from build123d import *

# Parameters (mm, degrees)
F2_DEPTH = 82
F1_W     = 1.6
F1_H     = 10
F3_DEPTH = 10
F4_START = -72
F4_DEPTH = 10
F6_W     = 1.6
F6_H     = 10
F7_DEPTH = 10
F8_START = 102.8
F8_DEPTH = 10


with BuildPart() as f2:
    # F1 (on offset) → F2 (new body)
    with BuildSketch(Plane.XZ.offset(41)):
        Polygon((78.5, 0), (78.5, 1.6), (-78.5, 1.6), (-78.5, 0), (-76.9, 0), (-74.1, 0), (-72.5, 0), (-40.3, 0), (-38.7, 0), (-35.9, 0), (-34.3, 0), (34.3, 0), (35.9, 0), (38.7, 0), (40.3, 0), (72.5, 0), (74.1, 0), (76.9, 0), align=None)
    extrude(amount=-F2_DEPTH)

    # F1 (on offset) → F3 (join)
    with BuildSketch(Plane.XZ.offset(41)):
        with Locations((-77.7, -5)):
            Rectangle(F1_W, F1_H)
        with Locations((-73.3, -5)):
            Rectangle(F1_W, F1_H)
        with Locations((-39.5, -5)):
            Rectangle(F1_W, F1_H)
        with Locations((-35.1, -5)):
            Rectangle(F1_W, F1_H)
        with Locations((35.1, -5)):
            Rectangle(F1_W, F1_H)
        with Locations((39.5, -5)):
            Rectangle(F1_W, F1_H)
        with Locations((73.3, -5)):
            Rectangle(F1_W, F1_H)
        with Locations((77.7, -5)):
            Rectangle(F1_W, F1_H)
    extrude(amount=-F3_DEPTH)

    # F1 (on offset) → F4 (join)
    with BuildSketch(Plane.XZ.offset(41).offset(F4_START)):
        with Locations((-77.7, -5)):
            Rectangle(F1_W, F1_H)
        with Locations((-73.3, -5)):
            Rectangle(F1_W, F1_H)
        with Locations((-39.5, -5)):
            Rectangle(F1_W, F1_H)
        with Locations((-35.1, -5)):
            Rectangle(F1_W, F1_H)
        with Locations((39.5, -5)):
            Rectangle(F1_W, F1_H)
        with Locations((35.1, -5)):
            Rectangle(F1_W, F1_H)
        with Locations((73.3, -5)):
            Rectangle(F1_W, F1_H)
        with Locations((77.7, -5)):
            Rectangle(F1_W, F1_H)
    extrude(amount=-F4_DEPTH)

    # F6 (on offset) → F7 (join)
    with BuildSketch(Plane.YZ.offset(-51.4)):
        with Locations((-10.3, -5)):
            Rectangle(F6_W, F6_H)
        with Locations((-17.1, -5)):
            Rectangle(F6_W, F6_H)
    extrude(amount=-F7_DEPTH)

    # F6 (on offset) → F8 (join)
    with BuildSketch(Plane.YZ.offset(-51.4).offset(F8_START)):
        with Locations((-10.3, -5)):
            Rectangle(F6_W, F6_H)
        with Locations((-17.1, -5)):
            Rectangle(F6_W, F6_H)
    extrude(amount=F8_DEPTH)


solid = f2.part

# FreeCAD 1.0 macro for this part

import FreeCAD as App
import Part
import Sketcher


def add_polygon(sketch, points):
    """Adds a closed chain of lines whose ends are joined by coincident constraints."""
    first, n = sketch.GeometryCount, len(points)
    for a, b in zip(points, points[1:] + points[:1]):
        sketch.addGeometry(Part.LineSegment(App.Vector(*a, 0), App.Vector(*b, 0)), False)
    for i in range(n):
        sketch.addConstraint(Sketcher.Constraint("Coincident", first + i, 2, first + (i + 1) % n, 1))

doc = App.newDocument("Part")
params = doc.addObject("Spreadsheet::Sheet", "Params")
for row, (alias, value) in enumerate([
    ("sketch1_width", "157 mm"),
    ("sketch1_height", "1.6 mm"),
    ("pad1_length", "82 mm"),
    ("sketch2_height", "10 mm"),
    ("sketch2_width", "1.6 mm"),
    ("pad2_length", "10 mm"),
    ("sketch3_height", "10 mm"),
    ("sketch3_width", "1.6 mm"),
    ("pad3_length", "10 mm"),
    ("sketch4_height", "10 mm"),
    ("sketch4_width", "1.6 mm"),
    ("pad4_length", "10 mm"),
    ("sketch5_height", "10 mm"),
    ("sketch5_width", "1.6 mm"),
    ("pad5_length", "10 mm"),
], start=1):
    params.set(f"A{row}", alias)
    params.set(f"B{row}", "=" + value)
    params.setAlias(f"B{row}", alias)

body = doc.addObject("PartDesign::Body", "Body")

sketch1 = body.newObject("Sketcher::SketchObject", "Sketch")
sketch1.AttachmentSupport = (doc.getObject("XZ_Plane"), [""])
sketch1.MapMode = "FlatFace"
sketch1.AttachmentOffset = App.Placement(App.Vector(0, 0, 41), App.Rotation())
add_polygon(sketch1, [(78.5, 0), (78.5, 1.6), (-78.5, 1.6), (-78.5, 0)])
sketch1.addConstraint(Sketcher.Constraint("Vertical", 0))
sketch1.addConstraint(Sketcher.Constraint("Horizontal", 1))
sketch1.addConstraint(Sketcher.Constraint("Vertical", 2))
sketch1.addConstraint(Sketcher.Constraint("Horizontal", 3))
sketch1.addConstraint(Sketcher.Constraint("Symmetric", 2, 2, 3, 2, -1, 1))
sketch1.addConstraint(Sketcher.Constraint("DistanceX", 1, 2, 1, 1, 157.0))
sketch1.addConstraint(Sketcher.Constraint("DistanceY", 0, 1, 0, 2, 1.6))
sketch1.setExpression("Constraints[9]", "Params.sketch1_width")
sketch1.setExpression("Constraints[10]", "Params.sketch1_height")
pad1 = body.newObject("PartDesign::Pad", "Pad")
pad1.Profile = sketch1
pad1.setExpression("Length", "Params.pad1_length")
pad1.Reversed = True

sketch2 = body.newObject("Sketcher::SketchObject", "Sketch001")
sketch2.AttachmentSupport = (doc.getObject("XZ_Plane"), [""])
sketch2.MapMode = "FlatFace"
sketch2.AttachmentOffset = App.Placement(App.Vector(0, 0, 41), App.Rotation())
add_polygon(sketch2, [(-78.5, 0), (-78.5, -10), (-76.9, -10), (-76.9, 0)])
add_polygon(sketch2, [(-74.1, 0), (-74.1, -10), (-72.5, -10), (-72.5, 0)])
add_polygon(sketch2, [(-40.3, 0), (-40.3, -10), (-38.7, -10), (-38.7, 0)])
add_polygon(sketch2, [(-35.9, 0), (-35.9, -10), (-34.3, -10), (-34.3, 0)])
add_polygon(sketch2, [(34.3, 0), (34.3, -10), (35.9, -10), (35.9, 0)])
add_polygon(sketch2, [(38.7, 0), (38.7, -10), (40.3, -10), (40.3, 0)])
add_polygon(sketch2, [(72.5, 0), (72.5, -10), (74.1, -10), (74.1, 0)])
add_polygon(sketch2, [(76.9, 0), (76.9, -10), (78.5, -10), (78.5, 0)])
sketch2.addConstraint(Sketcher.Constraint("Vertical", 0))
sketch2.addConstraint(Sketcher.Constraint("Horizontal", 1))
sketch2.addConstraint(Sketcher.Constraint("Vertical", 2))
sketch2.addConstraint(Sketcher.Constraint("Horizontal", 3))
sketch2.addConstraint(Sketcher.Constraint("Vertical", 4))
sketch2.addConstraint(Sketcher.Constraint("Horizontal", 5))
sketch2.addConstraint(Sketcher.Constraint("Vertical", 6))
sketch2.addConstraint(Sketcher.Constraint("Horizontal", 7))
sketch2.addConstraint(Sketcher.Constraint("Vertical", 8))
sketch2.addConstraint(Sketcher.Constraint("Horizontal", 9))
sketch2.addConstraint(Sketcher.Constraint("Vertical", 10))
sketch2.addConstraint(Sketcher.Constraint("Horizontal", 11))
sketch2.addConstraint(Sketcher.Constraint("Vertical", 12))
sketch2.addConstraint(Sketcher.Constraint("Horizontal", 13))
sketch2.addConstraint(Sketcher.Constraint("Vertical", 14))
sketch2.addConstraint(Sketcher.Constraint("Horizontal", 15))
sketch2.addConstraint(Sketcher.Constraint("Vertical", 16))
sketch2.addConstraint(Sketcher.Constraint("Horizontal", 17))
sketch2.addConstraint(Sketcher.Constraint("Vertical", 18))
sketch2.addConstraint(Sketcher.Constraint("Horizontal", 19))
sketch2.addConstraint(Sketcher.Constraint("Vertical", 20))
sketch2.addConstraint(Sketcher.Constraint("Horizontal", 21))
sketch2.addConstraint(Sketcher.Constraint("Vertical", 22))
sketch2.addConstraint(Sketcher.Constraint("Horizontal", 23))
sketch2.addConstraint(Sketcher.Constraint("Vertical", 24))
sketch2.addConstraint(Sketcher.Constraint("Horizontal", 25))
sketch2.addConstraint(Sketcher.Constraint("Vertical", 26))
sketch2.addConstraint(Sketcher.Constraint("Horizontal", 27))
sketch2.addConstraint(Sketcher.Constraint("Vertical", 28))
sketch2.addConstraint(Sketcher.Constraint("Horizontal", 29))
sketch2.addConstraint(Sketcher.Constraint("Vertical", 30))
sketch2.addConstraint(Sketcher.Constraint("Horizontal", 31))
sketch2.addConstraint(Sketcher.Constraint("Symmetric", 15, 2, 18, 2, -1, 1))
sketch2.addConstraint(Sketcher.Constraint("Symmetric", 11, 2, 22, 2, -1, 1))
sketch2.addConstraint(Sketcher.Constraint("Symmetric", 7, 2, 26, 2, -1, 1))
sketch2.addConstraint(Sketcher.Constraint("Symmetric", 3, 2, 30, 2, -1, 1))
sketch2.addConstraint(Sketcher.Constraint("Symmetric", 13, 2, 16, 2, -2))
sketch2.addConstraint(Sketcher.Constraint("Symmetric", 9, 2, 20, 2, -2))
sketch2.addConstraint(Sketcher.Constraint("Symmetric", 5, 2, 24, 2, -2))
sketch2.addConstraint(Sketcher.Constraint("Symmetric", 1, 2, 28, 2, -2))
sketch2.addConstraint(Sketcher.Constraint("PointOnObject", 2, 2, -1))
sketch2.addConstraint(Sketcher.Constraint("PointOnObject", 6, 2, -1))
sketch2.addConstraint(Sketcher.Constraint("PointOnObject", 10, 2, -1))
sketch2.addConstraint(Sketcher.Constraint("PointOnObject", 14, 2, -1))
sketch2.addConstraint(Sketcher.Constraint("Horizontal", 1, 2, 4, 2))
sketch2.addConstraint(Sketcher.Constraint("Horizontal", 5, 2, 8, 2))
sketch2.addConstraint(Sketcher.Constraint("Horizontal", 9, 2, 12, 2))
sketch2.addConstraint(Sketcher.Constraint("Equal", 3, 5))
sketch2.addConstraint(Sketcher.Constraint("Equal", 7, 9))
sketch2.addConstraint(Sketcher.Constraint("Equal", 11, 13))
sketch2.addConstraint(Sketcher.Constraint("DistanceY", 0, 2, 0, 1, 10.0))
sketch2.addConstraint(Sketcher.Constraint("DistanceX", 1, 1, 1, 2, 1.6))
sketch2.addConstraint(Sketcher.Constraint("DistanceX", 0, 2, 5, 2, 6.0))
sketch2.addConstraint(Sketcher.Constraint("DistanceX", 8, 2, 13, 2, 6.0))
sketch2.addConstraint(Sketcher.Constraint("DistanceX", 9, 2, 16, 2, 73.0))
sketch2.addConstraint(Sketcher.Constraint("DistanceX", 0, 2, -1, 1, 78.5))
sketch2.setExpression("Constraints[82]", "Params.sketch2_height")
sketch2.setExpression("Constraints[83]", "Params.sketch2_width")
pad2 = body.newObject("PartDesign::Pad", "Pad001")
pad2.Profile = sketch2
pad2.setExpression("Length", "Params.pad2_length")
pad2.Reversed = True

sketch3 = body.newObject("Sketcher::SketchObject", "Sketch002")
sketch3.AttachmentSupport = (doc.getObject("XZ_Plane"), [""])
sketch3.MapMode = "FlatFace"
sketch3.AttachmentOffset = App.Placement(App.Vector(0, 0, -31), App.Rotation())
add_polygon(sketch3, [(-78.5, 0), (-78.5, -10), (-76.9, -10), (-76.9, 0)])
add_polygon(sketch3, [(-74.1, 0), (-74.1, -10), (-72.5, -10), (-72.5, 0)])
add_polygon(sketch3, [(-40.3, 0), (-40.3, -10), (-38.7, -10), (-38.7, 0)])
add_polygon(sketch3, [(-35.9, 0), (-35.9, -10), (-34.3, -10), (-34.3, 0)])
add_polygon(sketch3, [(38.7, 0), (38.7, -10), (40.3, -10), (40.3, 0)])
add_polygon(sketch3, [(34.3, 0), (34.3, -10), (35.9, -10), (35.9, 0)])
add_polygon(sketch3, [(72.5, 0), (72.5, -10), (74.1, -10), (74.1, 0)])
add_polygon(sketch3, [(76.9, 0), (76.9, -10), (78.5, -10), (78.5, 0)])
sketch3.addConstraint(Sketcher.Constraint("Vertical", 0))
sketch3.addConstraint(Sketcher.Constraint("Horizontal", 1))
sketch3.addConstraint(Sketcher.Constraint("Vertical", 2))
sketch3.addConstraint(Sketcher.Constraint("Horizontal", 3))
sketch3.addConstraint(Sketcher.Constraint("Vertical", 4))
sketch3.addConstraint(Sketcher.Constraint("Horizontal", 5))
sketch3.addConstraint(Sketcher.Constraint("Vertical", 6))
sketch3.addConstraint(Sketcher.Constraint("Horizontal", 7))
sketch3.addConstraint(Sketcher.Constraint("Vertical", 8))
sketch3.addConstraint(Sketcher.Constraint("Horizontal", 9))
sketch3.addConstraint(Sketcher.Constraint("Vertical", 10))
sketch3.addConstraint(Sketcher.Constraint("Horizontal", 11))
sketch3.addConstraint(Sketcher.Constraint("Vertical", 12))
sketch3.addConstraint(Sketcher.Constraint("Horizontal", 13))
sketch3.addConstraint(Sketcher.Constraint("Vertical", 14))
sketch3.addConstraint(Sketcher.Constraint("Horizontal", 15))
sketch3.addConstraint(Sketcher.Constraint("Vertical", 16))
sketch3.addConstraint(Sketcher.Constraint("Horizontal", 17))
sketch3.addConstraint(Sketcher.Constraint("Vertical", 18))
sketch3.addConstraint(Sketcher.Constraint("Horizontal", 19))
sketch3.addConstraint(Sketcher.Constraint("Vertical", 20))
sketch3.addConstraint(Sketcher.Constraint("Horizontal", 21))
sketch3.addConstraint(Sketcher.Constraint("Vertical", 22))
sketch3.addConstraint(Sketcher.Constraint("Horizontal", 23))
sketch3.addConstraint(Sketcher.Constraint("Vertical", 24))
sketch3.addConstraint(Sketcher.Constraint("Horizontal", 25))
sketch3.addConstraint(Sketcher.Constraint("Vertical", 26))
sketch3.addConstraint(Sketcher.Constraint("Horizontal", 27))
sketch3.addConstraint(Sketcher.Constraint("Vertical", 28))
sketch3.addConstraint(Sketcher.Constraint("Horizontal", 29))
sketch3.addConstraint(Sketcher.Constraint("Vertical", 30))
sketch3.addConstraint(Sketcher.Constraint("Horizontal", 31))
sketch3.addConstraint(Sketcher.Constraint("Symmetric", 11, 2, 18, 2, -1, 1))
sketch3.addConstraint(Sketcher.Constraint("Symmetric", 15, 2, 22, 2, -1, 1))
sketch3.addConstraint(Sketcher.Constraint("Symmetric", 7, 2, 26, 2, -1, 1))
sketch3.addConstraint(Sketcher.Constraint("Symmetric", 3, 2, 30, 2, -1, 1))
sketch3.addConstraint(Sketcher.Constraint("Symmetric", 9, 2, 16, 2, -2))
sketch3.addConstraint(Sketcher.Constraint("Symmetric", 13, 2, 20, 2, -2))
sketch3.addConstraint(Sketcher.Constraint("Symmetric", 5, 2, 24, 2, -2))
sketch3.addConstraint(Sketcher.Constraint("Symmetric", 1, 2, 28, 2, -2))
sketch3.addConstraint(Sketcher.Constraint("PointOnObject", 2, 2, -1))
sketch3.addConstraint(Sketcher.Constraint("PointOnObject", 6, 2, -1))
sketch3.addConstraint(Sketcher.Constraint("PointOnObject", 10, 2, -1))
sketch3.addConstraint(Sketcher.Constraint("PointOnObject", 14, 2, -1))
sketch3.addConstraint(Sketcher.Constraint("Horizontal", 1, 2, 4, 2))
sketch3.addConstraint(Sketcher.Constraint("Horizontal", 5, 2, 8, 2))
sketch3.addConstraint(Sketcher.Constraint("Horizontal", 9, 2, 12, 2))
sketch3.addConstraint(Sketcher.Constraint("Equal", 3, 5))
sketch3.addConstraint(Sketcher.Constraint("Equal", 7, 9))
sketch3.addConstraint(Sketcher.Constraint("Equal", 11, 13))
sketch3.addConstraint(Sketcher.Constraint("DistanceY", 0, 2, 0, 1, 10.0))
sketch3.addConstraint(Sketcher.Constraint("DistanceX", 1, 1, 1, 2, 1.6))
sketch3.addConstraint(Sketcher.Constraint("DistanceX", 0, 2, 5, 2, 6.0))
sketch3.addConstraint(Sketcher.Constraint("DistanceX", 8, 2, 13, 2, 6.0))
sketch3.addConstraint(Sketcher.Constraint("DistanceX", 13, 2, 16, 2, 73.0))
sketch3.addConstraint(Sketcher.Constraint("DistanceX", 0, 2, -1, 1, 78.5))
sketch3.setExpression("Constraints[82]", "Params.sketch3_height")
sketch3.setExpression("Constraints[83]", "Params.sketch3_width")
pad3 = body.newObject("PartDesign::Pad", "Pad002")
pad3.Profile = sketch3
pad3.setExpression("Length", "Params.pad3_length")
pad3.Reversed = True

sketch4 = body.newObject("Sketcher::SketchObject", "Sketch003")
sketch4.AttachmentSupport = (doc.getObject("YZ_Plane"), [""])
sketch4.MapMode = "FlatFace"
sketch4.AttachmentOffset = App.Placement(App.Vector(0, 0, -51.4), App.Rotation())
add_polygon(sketch4, [(-11.1, 0), (-11.1, -10), (-9.5, -10), (-9.5, 0)])
add_polygon(sketch4, [(-17.9, 0), (-17.9, -10), (-16.3, -10), (-16.3, 0)])
sketch4.addConstraint(Sketcher.Constraint("Vertical", 0))
sketch4.addConstraint(Sketcher.Constraint("Horizontal", 1))
sketch4.addConstraint(Sketcher.Constraint("Vertical", 2))
sketch4.addConstraint(Sketcher.Constraint("Horizontal", 3))
sketch4.addConstraint(Sketcher.Constraint("Vertical", 4))
sketch4.addConstraint(Sketcher.Constraint("Horizontal", 5))
sketch4.addConstraint(Sketcher.Constraint("Vertical", 6))
sketch4.addConstraint(Sketcher.Constraint("Horizontal", 7))
sketch4.addConstraint(Sketcher.Constraint("PointOnObject", 2, 2, -1))
sketch4.addConstraint(Sketcher.Constraint("PointOnObject", 6, 2, -1))
sketch4.addConstraint(Sketcher.Constraint("Horizontal", 1, 2, 4, 2))
sketch4.addConstraint(Sketcher.Constraint("Equal", 3, 5))
sketch4.addConstraint(Sketcher.Constraint("DistanceY", 0, 2, 0, 1, 10.0))
sketch4.addConstraint(Sketcher.Constraint("DistanceX", 1, 1, 1, 2, 1.6))
sketch4.addConstraint(Sketcher.Constraint("DistanceX", 0, 2, -1, 1, 11.1))
sketch4.addConstraint(Sketcher.Constraint("DistanceX", 4, 2, -1, 1, 17.9))
sketch4.setExpression("Constraints[20]", "Params.sketch4_height")
sketch4.setExpression("Constraints[21]", "Params.sketch4_width")
pad4 = body.newObject("PartDesign::Pad", "Pad003")
pad4.Profile = sketch4
pad4.setExpression("Length", "Params.pad4_length")
pad4.Reversed = True

sketch5 = body.newObject("Sketcher::SketchObject", "Sketch004")
sketch5.AttachmentSupport = (doc.getObject("YZ_Plane"), [""])
sketch5.MapMode = "FlatFace"
sketch5.AttachmentOffset = App.Placement(App.Vector(0, 0, 51.4), App.Rotation())
add_polygon(sketch5, [(-11.1, 0), (-11.1, -10), (-9.5, -10), (-9.5, 0)])
add_polygon(sketch5, [(-17.9, 0), (-17.9, -10), (-16.3, -10), (-16.3, 0)])
sketch5.addConstraint(Sketcher.Constraint("Vertical", 0))
sketch5.addConstraint(Sketcher.Constraint("Horizontal", 1))
sketch5.addConstraint(Sketcher.Constraint("Vertical", 2))
sketch5.addConstraint(Sketcher.Constraint("Horizontal", 3))
sketch5.addConstraint(Sketcher.Constraint("Vertical", 4))
sketch5.addConstraint(Sketcher.Constraint("Horizontal", 5))
sketch5.addConstraint(Sketcher.Constraint("Vertical", 6))
sketch5.addConstraint(Sketcher.Constraint("Horizontal", 7))
sketch5.addConstraint(Sketcher.Constraint("PointOnObject", 2, 2, -1))
sketch5.addConstraint(Sketcher.Constraint("PointOnObject", 6, 2, -1))
sketch5.addConstraint(Sketcher.Constraint("Horizontal", 1, 2, 4, 2))
sketch5.addConstraint(Sketcher.Constraint("Equal", 3, 5))
sketch5.addConstraint(Sketcher.Constraint("DistanceY", 0, 2, 0, 1, 10.0))
sketch5.addConstraint(Sketcher.Constraint("DistanceX", 1, 1, 1, 2, 1.6))
sketch5.addConstraint(Sketcher.Constraint("DistanceX", 0, 2, -1, 1, 11.1))
sketch5.addConstraint(Sketcher.Constraint("DistanceX", 4, 2, -1, 1, 17.9))
sketch5.setExpression("Constraints[20]", "Params.sketch5_height")
sketch5.setExpression("Constraints[21]", "Params.sketch5_width")
pad5 = body.newObject("PartDesign::Pad", "Pad004")
pad5.Profile = sketch5
pad5.setExpression("Length", "Params.pad5_length")

doc.recompute()
